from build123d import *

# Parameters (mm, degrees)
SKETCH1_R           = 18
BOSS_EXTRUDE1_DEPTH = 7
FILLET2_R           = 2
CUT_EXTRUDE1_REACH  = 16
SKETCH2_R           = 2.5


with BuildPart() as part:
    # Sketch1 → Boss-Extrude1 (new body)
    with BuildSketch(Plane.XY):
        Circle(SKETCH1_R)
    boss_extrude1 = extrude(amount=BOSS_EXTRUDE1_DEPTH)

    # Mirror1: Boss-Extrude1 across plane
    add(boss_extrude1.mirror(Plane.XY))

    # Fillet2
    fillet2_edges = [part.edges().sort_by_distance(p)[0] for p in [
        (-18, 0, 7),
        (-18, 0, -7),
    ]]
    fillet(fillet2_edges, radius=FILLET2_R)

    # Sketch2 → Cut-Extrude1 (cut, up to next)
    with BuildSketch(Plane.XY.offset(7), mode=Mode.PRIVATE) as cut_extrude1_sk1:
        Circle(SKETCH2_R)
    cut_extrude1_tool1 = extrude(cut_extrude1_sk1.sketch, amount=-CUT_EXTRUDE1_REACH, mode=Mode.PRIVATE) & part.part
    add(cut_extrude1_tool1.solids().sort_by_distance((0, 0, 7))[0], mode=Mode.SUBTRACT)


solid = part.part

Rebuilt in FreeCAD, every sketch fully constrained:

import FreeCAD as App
import Part
import Sketcher


def edges_at(feature, points):
    """Names of the edges that pass closest to the given points."""
    edges = feature.Shape.Edges
    near = lambda p: min(range(len(edges)), key=lambda i: edges[i].distToShape(Part.Vertex(*p))[0])
    return sorted({f"Edge{near(p) + 1}" for p in points})

doc = App.newDocument("Part")
body = doc.addObject("PartDesign::Body", "Body")

# Sketch on XY plane
sketch1 = body.newObject("Sketcher::SketchObject", "Sketch")
sketch1.AttachmentSupport = (doc.getObject("XY_Plane"), [""])
sketch1.MapMode = "FlatFace"
sketch1.addGeometry(Part.Circle(App.Vector(0, 0, 0), App.Vector(0, 0, 1), 18), False)
sketch1.addConstraint([
    Sketcher.Constraint("Coincident", 0, 3, -1, 1),
    Sketcher.Constraint("Diameter", 0, 36.0),
])
pad1 = body.newObject("PartDesign::Pad", "Pad")
pad1.Profile = sketch1
pad1.Length = 7
doc.recompute()

mirrored = body.newObject("PartDesign::Mirrored", "Mirrored")
mirrored.Originals = [pad1]
mirrored.MirrorPlane = (doc.getObject("XY_Plane"), [""])
body.Tip = mirrored
doc.recompute()

fillet = body.newObject("PartDesign::Fillet", "Fillet")
fillet.Base = (mirrored, edges_at(mirrored, [(-18, 0, 7), (-18, 0, -7)]))
fillet.Radius = 2

# Sketch on XY plane
sketch2 = body.newObject("Sketcher::SketchObject", "Sketch001")
sketch2.AttachmentSupport = (doc.getObject("XY_Plane"), [""])
sketch2.MapMode = "FlatFace"
sketch2.AttachmentOffset = App.Placement(App.Vector(0, 0, 7), App.Rotation())
sketch2.addGeometry(Part.Circle(App.Vector(0, 0, 0), App.Vector(0, 0, 1), 2.5), False)
sketch2.addConstraint([
    Sketcher.Constraint("Coincident", 0, 3, -1, 1),
    Sketcher.Constraint("Diameter", 0, 5.0),
])
pocket1 = body.newObject("PartDesign::Pocket", "Pocket")
pocket1.Profile = sketch2
pocket1.Type = "UpToFirst"

doc.recompute()
